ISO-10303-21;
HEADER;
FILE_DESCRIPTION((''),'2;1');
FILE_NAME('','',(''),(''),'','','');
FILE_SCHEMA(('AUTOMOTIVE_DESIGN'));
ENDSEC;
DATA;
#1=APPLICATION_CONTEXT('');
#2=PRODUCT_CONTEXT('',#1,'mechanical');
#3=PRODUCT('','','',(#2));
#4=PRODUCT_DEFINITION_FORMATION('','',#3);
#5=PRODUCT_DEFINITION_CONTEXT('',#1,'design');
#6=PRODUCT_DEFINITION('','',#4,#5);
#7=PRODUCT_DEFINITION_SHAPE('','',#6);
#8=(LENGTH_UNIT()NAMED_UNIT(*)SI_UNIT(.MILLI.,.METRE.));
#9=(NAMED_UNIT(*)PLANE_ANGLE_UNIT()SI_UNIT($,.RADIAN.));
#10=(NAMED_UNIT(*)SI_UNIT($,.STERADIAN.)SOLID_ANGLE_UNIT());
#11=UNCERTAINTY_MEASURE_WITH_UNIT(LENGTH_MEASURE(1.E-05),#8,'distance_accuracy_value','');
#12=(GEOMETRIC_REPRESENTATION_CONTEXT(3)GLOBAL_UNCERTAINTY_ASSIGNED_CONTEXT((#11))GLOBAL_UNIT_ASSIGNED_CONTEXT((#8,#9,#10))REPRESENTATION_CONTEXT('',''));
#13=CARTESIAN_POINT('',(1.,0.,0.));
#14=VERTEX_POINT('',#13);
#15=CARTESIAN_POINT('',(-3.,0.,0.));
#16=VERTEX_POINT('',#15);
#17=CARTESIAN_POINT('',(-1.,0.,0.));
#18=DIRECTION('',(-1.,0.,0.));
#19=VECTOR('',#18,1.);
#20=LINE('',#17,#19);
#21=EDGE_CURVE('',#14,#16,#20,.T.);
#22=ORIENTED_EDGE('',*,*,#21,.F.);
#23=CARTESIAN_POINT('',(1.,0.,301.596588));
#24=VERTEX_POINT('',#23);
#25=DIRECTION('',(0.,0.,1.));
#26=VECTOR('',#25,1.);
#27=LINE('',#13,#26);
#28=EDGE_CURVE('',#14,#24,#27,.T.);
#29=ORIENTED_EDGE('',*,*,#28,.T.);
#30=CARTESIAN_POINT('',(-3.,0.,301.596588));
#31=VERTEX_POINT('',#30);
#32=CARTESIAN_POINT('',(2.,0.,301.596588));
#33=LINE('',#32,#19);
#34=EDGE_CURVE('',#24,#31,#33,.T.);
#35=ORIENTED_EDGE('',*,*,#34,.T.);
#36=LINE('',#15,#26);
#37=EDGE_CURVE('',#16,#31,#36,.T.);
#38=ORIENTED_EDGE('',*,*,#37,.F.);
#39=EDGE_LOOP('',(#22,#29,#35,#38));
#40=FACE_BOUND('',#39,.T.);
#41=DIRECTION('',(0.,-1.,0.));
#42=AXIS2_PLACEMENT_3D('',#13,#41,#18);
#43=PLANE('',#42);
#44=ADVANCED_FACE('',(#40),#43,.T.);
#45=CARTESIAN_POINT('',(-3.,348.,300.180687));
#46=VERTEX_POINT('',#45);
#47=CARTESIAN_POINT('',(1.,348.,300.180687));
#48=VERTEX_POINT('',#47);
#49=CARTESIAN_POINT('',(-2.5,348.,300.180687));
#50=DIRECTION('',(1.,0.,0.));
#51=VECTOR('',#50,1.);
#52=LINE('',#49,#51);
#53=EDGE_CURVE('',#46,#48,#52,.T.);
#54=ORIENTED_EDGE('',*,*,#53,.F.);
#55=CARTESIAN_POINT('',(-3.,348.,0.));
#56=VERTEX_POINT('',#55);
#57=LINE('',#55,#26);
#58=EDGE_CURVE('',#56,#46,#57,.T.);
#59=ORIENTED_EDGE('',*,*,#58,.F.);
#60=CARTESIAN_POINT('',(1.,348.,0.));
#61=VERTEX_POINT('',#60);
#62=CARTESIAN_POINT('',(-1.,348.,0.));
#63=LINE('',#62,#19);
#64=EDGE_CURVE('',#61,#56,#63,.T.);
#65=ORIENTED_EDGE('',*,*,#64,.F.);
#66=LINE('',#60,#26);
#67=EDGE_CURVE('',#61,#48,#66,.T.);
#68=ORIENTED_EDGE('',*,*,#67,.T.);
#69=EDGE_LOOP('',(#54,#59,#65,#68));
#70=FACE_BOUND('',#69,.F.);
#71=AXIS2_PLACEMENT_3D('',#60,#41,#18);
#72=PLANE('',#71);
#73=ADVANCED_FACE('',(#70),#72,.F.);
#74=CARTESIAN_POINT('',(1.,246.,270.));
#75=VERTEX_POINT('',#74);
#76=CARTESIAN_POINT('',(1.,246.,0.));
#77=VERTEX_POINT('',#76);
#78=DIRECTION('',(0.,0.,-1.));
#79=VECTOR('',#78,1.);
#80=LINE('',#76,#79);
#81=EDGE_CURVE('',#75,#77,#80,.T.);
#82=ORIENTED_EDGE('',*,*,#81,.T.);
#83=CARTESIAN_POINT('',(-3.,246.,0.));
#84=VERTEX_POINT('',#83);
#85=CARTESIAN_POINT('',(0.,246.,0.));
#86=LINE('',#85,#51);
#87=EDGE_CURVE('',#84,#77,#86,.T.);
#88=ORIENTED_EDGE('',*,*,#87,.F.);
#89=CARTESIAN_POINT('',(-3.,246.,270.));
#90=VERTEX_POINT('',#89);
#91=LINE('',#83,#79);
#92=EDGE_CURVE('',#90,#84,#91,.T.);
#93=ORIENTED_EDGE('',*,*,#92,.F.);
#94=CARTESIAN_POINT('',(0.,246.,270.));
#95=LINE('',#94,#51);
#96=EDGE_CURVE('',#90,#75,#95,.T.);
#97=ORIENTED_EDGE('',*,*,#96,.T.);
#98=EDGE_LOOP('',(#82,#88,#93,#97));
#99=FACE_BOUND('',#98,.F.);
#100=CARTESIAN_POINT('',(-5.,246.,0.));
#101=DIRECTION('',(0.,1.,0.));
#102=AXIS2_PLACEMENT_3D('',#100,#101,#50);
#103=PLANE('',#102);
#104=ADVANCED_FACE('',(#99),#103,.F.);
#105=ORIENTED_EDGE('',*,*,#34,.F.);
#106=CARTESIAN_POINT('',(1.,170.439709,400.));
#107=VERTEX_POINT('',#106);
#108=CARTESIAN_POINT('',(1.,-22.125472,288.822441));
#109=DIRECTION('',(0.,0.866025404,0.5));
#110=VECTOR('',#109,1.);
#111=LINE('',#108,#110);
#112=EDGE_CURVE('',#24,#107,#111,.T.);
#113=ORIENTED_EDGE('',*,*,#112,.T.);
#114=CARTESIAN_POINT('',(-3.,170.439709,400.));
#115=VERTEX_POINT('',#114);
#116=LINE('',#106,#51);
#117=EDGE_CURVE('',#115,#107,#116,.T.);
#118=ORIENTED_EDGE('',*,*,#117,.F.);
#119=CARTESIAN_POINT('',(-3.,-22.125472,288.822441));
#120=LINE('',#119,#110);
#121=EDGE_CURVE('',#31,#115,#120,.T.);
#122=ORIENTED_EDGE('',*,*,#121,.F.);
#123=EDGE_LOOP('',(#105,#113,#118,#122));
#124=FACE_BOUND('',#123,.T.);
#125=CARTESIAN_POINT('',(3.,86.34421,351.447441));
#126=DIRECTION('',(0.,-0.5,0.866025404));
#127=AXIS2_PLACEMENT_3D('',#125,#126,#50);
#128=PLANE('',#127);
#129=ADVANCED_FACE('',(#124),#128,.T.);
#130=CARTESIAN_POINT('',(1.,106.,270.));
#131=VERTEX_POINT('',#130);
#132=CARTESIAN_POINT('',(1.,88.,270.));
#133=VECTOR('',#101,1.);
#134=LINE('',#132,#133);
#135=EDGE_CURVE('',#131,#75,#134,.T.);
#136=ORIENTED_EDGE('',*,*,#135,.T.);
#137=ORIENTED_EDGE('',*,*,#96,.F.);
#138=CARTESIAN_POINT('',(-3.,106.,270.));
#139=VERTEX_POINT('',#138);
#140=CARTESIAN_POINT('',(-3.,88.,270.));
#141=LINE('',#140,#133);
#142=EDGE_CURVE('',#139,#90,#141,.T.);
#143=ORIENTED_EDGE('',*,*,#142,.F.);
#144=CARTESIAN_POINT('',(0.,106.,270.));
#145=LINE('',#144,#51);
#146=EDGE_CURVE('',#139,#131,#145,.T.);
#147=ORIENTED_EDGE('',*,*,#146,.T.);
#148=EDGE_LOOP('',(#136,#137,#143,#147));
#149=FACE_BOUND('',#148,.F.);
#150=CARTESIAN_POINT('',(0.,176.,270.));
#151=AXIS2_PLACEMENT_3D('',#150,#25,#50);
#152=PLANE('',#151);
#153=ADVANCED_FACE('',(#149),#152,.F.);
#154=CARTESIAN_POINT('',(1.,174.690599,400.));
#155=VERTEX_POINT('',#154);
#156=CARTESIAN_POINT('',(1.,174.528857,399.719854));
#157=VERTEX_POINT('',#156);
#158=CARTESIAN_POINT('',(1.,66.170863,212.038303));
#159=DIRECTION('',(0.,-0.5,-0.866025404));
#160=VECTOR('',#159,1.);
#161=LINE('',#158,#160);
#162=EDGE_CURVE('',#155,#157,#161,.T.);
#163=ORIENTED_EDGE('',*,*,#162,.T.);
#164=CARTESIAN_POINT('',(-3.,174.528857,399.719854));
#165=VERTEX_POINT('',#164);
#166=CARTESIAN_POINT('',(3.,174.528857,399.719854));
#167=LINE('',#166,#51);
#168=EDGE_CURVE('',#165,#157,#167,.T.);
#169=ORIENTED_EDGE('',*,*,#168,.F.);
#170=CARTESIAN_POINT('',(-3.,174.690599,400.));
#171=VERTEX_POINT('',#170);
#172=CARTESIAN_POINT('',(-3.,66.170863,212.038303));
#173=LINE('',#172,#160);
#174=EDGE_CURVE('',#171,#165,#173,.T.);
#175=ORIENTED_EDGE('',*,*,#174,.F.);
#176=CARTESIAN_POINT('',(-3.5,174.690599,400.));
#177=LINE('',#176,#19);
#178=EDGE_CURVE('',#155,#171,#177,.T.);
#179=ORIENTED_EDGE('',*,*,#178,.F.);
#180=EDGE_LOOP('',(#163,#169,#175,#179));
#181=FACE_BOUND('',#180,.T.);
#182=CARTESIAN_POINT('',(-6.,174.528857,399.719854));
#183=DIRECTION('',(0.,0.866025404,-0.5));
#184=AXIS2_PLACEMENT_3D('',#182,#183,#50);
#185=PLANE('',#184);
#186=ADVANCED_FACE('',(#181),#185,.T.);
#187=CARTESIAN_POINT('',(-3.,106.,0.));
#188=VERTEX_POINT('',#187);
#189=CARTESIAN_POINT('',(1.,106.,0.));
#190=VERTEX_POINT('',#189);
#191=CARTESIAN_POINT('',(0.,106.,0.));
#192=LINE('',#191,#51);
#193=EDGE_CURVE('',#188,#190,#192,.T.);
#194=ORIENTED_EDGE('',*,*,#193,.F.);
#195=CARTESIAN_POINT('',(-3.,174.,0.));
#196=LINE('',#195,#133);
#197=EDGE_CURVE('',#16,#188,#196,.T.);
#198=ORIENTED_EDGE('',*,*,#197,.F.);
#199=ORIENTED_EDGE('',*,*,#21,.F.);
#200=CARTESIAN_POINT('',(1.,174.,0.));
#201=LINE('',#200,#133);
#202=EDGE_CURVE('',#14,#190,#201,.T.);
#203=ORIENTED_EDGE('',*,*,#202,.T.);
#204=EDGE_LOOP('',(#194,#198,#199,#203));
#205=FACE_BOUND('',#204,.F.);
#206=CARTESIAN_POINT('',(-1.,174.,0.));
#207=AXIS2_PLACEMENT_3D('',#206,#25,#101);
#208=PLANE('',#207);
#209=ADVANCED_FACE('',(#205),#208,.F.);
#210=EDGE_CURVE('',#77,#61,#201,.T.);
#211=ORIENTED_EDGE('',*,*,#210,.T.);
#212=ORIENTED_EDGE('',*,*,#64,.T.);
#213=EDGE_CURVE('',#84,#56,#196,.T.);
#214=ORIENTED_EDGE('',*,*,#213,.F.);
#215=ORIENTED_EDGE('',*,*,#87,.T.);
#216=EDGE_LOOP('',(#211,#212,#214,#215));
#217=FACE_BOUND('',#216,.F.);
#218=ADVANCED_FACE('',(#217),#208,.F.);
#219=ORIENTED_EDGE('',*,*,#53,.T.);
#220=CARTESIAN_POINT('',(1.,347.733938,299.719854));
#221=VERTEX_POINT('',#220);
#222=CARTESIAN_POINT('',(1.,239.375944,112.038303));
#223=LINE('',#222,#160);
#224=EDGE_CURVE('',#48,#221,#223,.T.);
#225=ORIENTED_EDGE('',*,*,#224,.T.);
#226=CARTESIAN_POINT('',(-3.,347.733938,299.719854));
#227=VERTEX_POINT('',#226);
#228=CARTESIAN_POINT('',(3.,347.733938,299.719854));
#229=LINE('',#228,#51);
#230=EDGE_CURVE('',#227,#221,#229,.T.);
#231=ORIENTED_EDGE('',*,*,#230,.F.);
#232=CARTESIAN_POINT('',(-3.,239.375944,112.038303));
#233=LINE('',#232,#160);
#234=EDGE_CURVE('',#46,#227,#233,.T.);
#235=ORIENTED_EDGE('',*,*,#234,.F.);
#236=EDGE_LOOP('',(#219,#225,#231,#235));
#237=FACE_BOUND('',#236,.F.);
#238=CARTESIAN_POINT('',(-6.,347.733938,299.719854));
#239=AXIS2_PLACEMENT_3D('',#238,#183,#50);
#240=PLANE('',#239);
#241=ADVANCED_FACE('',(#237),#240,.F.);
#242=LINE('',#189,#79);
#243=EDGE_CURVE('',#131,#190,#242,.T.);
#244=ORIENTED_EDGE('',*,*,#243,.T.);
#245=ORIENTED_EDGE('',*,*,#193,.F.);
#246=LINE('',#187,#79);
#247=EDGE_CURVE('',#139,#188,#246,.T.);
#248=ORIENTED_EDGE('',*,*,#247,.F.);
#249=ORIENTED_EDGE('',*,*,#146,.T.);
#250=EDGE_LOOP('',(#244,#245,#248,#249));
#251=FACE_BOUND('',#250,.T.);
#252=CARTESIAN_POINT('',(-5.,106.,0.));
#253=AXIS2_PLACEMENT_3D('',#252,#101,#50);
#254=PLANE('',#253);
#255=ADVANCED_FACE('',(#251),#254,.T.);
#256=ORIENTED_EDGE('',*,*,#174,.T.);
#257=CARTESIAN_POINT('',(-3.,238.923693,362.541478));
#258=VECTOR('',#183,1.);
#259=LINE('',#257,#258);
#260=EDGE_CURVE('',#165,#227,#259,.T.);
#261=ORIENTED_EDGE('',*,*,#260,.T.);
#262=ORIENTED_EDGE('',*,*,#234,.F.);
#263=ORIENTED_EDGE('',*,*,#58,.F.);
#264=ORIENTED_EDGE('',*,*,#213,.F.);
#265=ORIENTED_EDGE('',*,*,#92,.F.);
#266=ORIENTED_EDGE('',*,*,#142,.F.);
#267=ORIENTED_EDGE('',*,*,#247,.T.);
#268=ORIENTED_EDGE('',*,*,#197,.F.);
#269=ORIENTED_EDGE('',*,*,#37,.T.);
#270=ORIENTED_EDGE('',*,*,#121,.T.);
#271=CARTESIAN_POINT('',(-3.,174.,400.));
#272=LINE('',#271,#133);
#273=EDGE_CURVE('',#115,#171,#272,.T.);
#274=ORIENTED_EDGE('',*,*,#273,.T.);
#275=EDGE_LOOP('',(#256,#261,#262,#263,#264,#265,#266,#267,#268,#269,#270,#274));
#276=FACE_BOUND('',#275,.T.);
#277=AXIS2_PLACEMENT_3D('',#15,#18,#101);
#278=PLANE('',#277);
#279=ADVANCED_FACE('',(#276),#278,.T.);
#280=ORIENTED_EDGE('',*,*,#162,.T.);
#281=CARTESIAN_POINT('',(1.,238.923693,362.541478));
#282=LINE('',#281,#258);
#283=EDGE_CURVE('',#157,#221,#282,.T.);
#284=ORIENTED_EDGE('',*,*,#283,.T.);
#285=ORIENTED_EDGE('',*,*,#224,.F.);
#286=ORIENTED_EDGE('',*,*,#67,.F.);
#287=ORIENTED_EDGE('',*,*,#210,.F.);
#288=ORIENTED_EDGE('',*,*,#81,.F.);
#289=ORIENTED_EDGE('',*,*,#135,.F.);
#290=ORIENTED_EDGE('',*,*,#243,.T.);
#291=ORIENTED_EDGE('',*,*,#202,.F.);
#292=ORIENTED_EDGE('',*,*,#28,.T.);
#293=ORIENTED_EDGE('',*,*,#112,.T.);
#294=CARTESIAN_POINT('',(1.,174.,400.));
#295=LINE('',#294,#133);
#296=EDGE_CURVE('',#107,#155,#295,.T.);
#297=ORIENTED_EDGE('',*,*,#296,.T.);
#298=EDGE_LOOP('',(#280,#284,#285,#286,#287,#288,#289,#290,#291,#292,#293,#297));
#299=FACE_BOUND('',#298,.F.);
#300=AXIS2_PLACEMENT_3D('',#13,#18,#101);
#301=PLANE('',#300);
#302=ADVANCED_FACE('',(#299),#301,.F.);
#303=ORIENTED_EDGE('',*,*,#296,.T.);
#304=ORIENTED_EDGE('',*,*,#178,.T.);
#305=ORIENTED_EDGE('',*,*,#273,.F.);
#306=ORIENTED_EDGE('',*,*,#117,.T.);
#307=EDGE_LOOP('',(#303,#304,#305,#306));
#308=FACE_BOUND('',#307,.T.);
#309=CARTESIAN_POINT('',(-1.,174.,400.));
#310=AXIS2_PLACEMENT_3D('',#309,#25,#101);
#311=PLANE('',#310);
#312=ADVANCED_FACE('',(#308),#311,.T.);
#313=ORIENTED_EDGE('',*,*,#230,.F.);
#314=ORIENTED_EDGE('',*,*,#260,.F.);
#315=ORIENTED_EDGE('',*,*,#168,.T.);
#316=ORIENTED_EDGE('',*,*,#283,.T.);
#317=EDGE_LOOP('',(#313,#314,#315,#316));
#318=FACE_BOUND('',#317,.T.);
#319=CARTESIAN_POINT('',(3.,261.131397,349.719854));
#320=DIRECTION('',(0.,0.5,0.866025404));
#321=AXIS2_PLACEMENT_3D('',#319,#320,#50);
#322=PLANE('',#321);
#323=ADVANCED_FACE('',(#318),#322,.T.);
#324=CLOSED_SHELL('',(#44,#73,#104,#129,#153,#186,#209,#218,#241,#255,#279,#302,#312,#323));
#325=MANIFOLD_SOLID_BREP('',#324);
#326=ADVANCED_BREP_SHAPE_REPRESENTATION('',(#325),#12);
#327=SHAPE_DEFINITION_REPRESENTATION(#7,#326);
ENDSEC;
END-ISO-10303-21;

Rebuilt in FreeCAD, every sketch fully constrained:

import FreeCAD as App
import Part
import Sketcher

V = App.Vector


def add_polygon(sketch, points):
    """Adds a closed chain of lines whose ends are joined by coincident constraints."""
    first, n = sketch.GeometryCount, len(points)
    for a, b in zip(points, points[1:] + points[:1]):
        sketch.addGeometry(Part.LineSegment(App.Vector(*a, 0), App.Vector(*b, 0)), False)
    for i in range(n):
        sketch.addConstraint(Sketcher.Constraint("Coincident", first + i, 2, first + (i + 1) % n, 1))

doc = App.newDocument("Part")
body = doc.addObject("PartDesign::Body", "Body")

# Sketch on XY plane
sketch1 = body.newObject("Sketcher::SketchObject", "Sketch")
sketch1.AttachmentSupport = (doc.getObject("XY_Plane"), [""])
sketch1.MapMode = "FlatFace"
add_polygon(sketch1, [(-5, 246), (-5, 106), (5, 106), (5, 246)])  # lines 0-3
sketch1.addConstraint([
    Sketcher.Constraint("Vertical", 0),
    Sketcher.Constraint("Horizontal", 1),
    Sketcher.Constraint("Vertical", 2),
    Sketcher.Constraint("Horizontal", 3),
    Sketcher.Constraint("DistanceX", 1, 1, 1, 2, 10.0),
    Sketcher.Constraint("DistanceY", 0, 2, 0, 1, 140.0),
    Sketcher.Constraint("DistanceX", 0, 2, -1, 1, 5.0),
    Sketcher.Constraint("DistanceY", -1, 1, 0, 2, 106.0),
])
pad1 = body.newObject("PartDesign::Pad", "Pad")
pad1.Profile = sketch1
pad1.Length = 270
body2 = doc.addObject("PartDesign::Body", "Body001")

# Sketch on XY plane
sketch2 = body2.newObject("Sketcher::SketchObject", "Sketch001")
sketch2.AttachmentSupport = (doc.getObject("XY_Plane001"), [""])
sketch2.MapMode = "FlatFace"
add_polygon(sketch2, [(0, 200), (0, 0), (18, 0), (18, 200)])  # lines 0-3
sketch2.addConstraint([
    Sketcher.Constraint("Vertical", 0),
    Sketcher.Constraint("Horizontal", 1),
    Sketcher.Constraint("Vertical", 2),
    Sketcher.Constraint("Horizontal", 3),
    Sketcher.Constraint("Coincident", 0, 2, -1, 1),
    Sketcher.Constraint("DistanceX", 1, 1, 1, 2, 18.0),
    Sketcher.Constraint("DistanceY", 0, 2, 0, 1, 200.0),
])
pad2 = body2.newObject("PartDesign::Pad", "Pad001")
pad2.Profile = sketch2
pad2.Length = 87
body3 = doc.addObject("PartDesign::Body", "Body002")
doc.recompute()

body2.Placement = App.Placement(V(598, 174.528857, 399.719854), App.Rotation(V(-1, 0, 0), 30))
boolean = body3.newObject("PartDesign::Boolean", "Boolean")
boolean.Type = "Fuse"
boolean.addObjects([body2])
body4 = doc.addObject("PartDesign::Body", "Body003")

# Sketch on XY plane
sketch3 = body4.newObject("Sketcher::SketchObject", "Sketch002")
sketch3.AttachmentSupport = (doc.getObject("XY_Plane003"), [""])
sketch3.MapMode = "FlatFace"
add_polygon(sketch3, [(0, 200), (0, 0), (18, 0), (18, 200)])  # lines 0-3
sketch3.addConstraint([
    Sketcher.Constraint("Vertical", 0),
    Sketcher.Constraint("Horizontal", 1),
    Sketcher.Constraint("Vertical", 2),
    Sketcher.Constraint("Horizontal", 3),
    Sketcher.Constraint("Coincident", 0, 2, -1, 1),
    Sketcher.Constraint("DistanceX", 1, 1, 1, 2, 18.0),
    Sketcher.Constraint("DistanceY", 0, 2, 0, 1, 200.0),
])
pad3 = body4.newObject("PartDesign::Pad", "Pad002")
pad3.Profile = sketch3
pad3.Length = 87
body5 = doc.addObject("PartDesign::Body", "Body004")
doc.recompute()

body4.Placement = App.Placement(V(598, -0.25833, 301.447441), App.Rotation(V(1, 0, 0), 30))
boolean2 = body5.newObject("PartDesign::Boolean", "Boolean001")
boolean2.Type = "Fuse"
boolean2.addObjects([body4])
body6 = doc.addObject("PartDesign::Body", "Body005")

# Sketch on XY plane
sketch4 = body6.newObject("Sketcher::SketchObject", "Sketch003")
sketch4.AttachmentSupport = (doc.getObject("XY_Plane005"), [""])
sketch4.MapMode = "FlatFace"
add_polygon(sketch4, [(601, 0), (605, 0), (605, 348), (601, 348)])  # lines 0-3
sketch4.addConstraint([
    Sketcher.Constraint("Horizontal", 0),
    Sketcher.Constraint("Vertical", 1),
    Sketcher.Constraint("Horizontal", 2),
    Sketcher.Constraint("Vertical", 3),
    Sketcher.Constraint("PointOnObject", 0, 2, -1),
    Sketcher.Constraint("DistanceX", 0, 1, 0, 2, 4.0),
    Sketcher.Constraint("DistanceY", 1, 1, 1, 2, 348.0),
    Sketcher.Constraint("DistanceX", -1, 1, 0, 2, 605.0),
])
pad4 = body6.newObject("PartDesign::Pad", "Pad003")
pad4.Profile = sketch4
pad4.Length = 400
doc.recompute()

boolean3 = body6.newObject("PartDesign::Boolean", "Boolean002")
boolean3.Type = "Cut"
boolean3.addObjects([body5])
doc.recompute()

boolean4 = body6.newObject("PartDesign::Boolean", "Boolean003")
boolean4.Type = "Cut"
boolean4.addObjects([body3])
body7 = doc.addObject("PartDesign::Body", "Body006")
doc.recompute()

body6.Placement = App.Placement(V(-604, 0, 0), App.Rotation(V(0, 0, 1), 0))
boolean5 = body7.newObject("PartDesign::Boolean", "Boolean004")
boolean5.Type = "Fuse"
boolean5.addObjects([body6])
doc.recompute()

boolean6 = body7.newObject("PartDesign::Boolean", "Boolean005")
boolean6.Type = "Cut"
boolean6.addObjects([body])

doc.recompute()
